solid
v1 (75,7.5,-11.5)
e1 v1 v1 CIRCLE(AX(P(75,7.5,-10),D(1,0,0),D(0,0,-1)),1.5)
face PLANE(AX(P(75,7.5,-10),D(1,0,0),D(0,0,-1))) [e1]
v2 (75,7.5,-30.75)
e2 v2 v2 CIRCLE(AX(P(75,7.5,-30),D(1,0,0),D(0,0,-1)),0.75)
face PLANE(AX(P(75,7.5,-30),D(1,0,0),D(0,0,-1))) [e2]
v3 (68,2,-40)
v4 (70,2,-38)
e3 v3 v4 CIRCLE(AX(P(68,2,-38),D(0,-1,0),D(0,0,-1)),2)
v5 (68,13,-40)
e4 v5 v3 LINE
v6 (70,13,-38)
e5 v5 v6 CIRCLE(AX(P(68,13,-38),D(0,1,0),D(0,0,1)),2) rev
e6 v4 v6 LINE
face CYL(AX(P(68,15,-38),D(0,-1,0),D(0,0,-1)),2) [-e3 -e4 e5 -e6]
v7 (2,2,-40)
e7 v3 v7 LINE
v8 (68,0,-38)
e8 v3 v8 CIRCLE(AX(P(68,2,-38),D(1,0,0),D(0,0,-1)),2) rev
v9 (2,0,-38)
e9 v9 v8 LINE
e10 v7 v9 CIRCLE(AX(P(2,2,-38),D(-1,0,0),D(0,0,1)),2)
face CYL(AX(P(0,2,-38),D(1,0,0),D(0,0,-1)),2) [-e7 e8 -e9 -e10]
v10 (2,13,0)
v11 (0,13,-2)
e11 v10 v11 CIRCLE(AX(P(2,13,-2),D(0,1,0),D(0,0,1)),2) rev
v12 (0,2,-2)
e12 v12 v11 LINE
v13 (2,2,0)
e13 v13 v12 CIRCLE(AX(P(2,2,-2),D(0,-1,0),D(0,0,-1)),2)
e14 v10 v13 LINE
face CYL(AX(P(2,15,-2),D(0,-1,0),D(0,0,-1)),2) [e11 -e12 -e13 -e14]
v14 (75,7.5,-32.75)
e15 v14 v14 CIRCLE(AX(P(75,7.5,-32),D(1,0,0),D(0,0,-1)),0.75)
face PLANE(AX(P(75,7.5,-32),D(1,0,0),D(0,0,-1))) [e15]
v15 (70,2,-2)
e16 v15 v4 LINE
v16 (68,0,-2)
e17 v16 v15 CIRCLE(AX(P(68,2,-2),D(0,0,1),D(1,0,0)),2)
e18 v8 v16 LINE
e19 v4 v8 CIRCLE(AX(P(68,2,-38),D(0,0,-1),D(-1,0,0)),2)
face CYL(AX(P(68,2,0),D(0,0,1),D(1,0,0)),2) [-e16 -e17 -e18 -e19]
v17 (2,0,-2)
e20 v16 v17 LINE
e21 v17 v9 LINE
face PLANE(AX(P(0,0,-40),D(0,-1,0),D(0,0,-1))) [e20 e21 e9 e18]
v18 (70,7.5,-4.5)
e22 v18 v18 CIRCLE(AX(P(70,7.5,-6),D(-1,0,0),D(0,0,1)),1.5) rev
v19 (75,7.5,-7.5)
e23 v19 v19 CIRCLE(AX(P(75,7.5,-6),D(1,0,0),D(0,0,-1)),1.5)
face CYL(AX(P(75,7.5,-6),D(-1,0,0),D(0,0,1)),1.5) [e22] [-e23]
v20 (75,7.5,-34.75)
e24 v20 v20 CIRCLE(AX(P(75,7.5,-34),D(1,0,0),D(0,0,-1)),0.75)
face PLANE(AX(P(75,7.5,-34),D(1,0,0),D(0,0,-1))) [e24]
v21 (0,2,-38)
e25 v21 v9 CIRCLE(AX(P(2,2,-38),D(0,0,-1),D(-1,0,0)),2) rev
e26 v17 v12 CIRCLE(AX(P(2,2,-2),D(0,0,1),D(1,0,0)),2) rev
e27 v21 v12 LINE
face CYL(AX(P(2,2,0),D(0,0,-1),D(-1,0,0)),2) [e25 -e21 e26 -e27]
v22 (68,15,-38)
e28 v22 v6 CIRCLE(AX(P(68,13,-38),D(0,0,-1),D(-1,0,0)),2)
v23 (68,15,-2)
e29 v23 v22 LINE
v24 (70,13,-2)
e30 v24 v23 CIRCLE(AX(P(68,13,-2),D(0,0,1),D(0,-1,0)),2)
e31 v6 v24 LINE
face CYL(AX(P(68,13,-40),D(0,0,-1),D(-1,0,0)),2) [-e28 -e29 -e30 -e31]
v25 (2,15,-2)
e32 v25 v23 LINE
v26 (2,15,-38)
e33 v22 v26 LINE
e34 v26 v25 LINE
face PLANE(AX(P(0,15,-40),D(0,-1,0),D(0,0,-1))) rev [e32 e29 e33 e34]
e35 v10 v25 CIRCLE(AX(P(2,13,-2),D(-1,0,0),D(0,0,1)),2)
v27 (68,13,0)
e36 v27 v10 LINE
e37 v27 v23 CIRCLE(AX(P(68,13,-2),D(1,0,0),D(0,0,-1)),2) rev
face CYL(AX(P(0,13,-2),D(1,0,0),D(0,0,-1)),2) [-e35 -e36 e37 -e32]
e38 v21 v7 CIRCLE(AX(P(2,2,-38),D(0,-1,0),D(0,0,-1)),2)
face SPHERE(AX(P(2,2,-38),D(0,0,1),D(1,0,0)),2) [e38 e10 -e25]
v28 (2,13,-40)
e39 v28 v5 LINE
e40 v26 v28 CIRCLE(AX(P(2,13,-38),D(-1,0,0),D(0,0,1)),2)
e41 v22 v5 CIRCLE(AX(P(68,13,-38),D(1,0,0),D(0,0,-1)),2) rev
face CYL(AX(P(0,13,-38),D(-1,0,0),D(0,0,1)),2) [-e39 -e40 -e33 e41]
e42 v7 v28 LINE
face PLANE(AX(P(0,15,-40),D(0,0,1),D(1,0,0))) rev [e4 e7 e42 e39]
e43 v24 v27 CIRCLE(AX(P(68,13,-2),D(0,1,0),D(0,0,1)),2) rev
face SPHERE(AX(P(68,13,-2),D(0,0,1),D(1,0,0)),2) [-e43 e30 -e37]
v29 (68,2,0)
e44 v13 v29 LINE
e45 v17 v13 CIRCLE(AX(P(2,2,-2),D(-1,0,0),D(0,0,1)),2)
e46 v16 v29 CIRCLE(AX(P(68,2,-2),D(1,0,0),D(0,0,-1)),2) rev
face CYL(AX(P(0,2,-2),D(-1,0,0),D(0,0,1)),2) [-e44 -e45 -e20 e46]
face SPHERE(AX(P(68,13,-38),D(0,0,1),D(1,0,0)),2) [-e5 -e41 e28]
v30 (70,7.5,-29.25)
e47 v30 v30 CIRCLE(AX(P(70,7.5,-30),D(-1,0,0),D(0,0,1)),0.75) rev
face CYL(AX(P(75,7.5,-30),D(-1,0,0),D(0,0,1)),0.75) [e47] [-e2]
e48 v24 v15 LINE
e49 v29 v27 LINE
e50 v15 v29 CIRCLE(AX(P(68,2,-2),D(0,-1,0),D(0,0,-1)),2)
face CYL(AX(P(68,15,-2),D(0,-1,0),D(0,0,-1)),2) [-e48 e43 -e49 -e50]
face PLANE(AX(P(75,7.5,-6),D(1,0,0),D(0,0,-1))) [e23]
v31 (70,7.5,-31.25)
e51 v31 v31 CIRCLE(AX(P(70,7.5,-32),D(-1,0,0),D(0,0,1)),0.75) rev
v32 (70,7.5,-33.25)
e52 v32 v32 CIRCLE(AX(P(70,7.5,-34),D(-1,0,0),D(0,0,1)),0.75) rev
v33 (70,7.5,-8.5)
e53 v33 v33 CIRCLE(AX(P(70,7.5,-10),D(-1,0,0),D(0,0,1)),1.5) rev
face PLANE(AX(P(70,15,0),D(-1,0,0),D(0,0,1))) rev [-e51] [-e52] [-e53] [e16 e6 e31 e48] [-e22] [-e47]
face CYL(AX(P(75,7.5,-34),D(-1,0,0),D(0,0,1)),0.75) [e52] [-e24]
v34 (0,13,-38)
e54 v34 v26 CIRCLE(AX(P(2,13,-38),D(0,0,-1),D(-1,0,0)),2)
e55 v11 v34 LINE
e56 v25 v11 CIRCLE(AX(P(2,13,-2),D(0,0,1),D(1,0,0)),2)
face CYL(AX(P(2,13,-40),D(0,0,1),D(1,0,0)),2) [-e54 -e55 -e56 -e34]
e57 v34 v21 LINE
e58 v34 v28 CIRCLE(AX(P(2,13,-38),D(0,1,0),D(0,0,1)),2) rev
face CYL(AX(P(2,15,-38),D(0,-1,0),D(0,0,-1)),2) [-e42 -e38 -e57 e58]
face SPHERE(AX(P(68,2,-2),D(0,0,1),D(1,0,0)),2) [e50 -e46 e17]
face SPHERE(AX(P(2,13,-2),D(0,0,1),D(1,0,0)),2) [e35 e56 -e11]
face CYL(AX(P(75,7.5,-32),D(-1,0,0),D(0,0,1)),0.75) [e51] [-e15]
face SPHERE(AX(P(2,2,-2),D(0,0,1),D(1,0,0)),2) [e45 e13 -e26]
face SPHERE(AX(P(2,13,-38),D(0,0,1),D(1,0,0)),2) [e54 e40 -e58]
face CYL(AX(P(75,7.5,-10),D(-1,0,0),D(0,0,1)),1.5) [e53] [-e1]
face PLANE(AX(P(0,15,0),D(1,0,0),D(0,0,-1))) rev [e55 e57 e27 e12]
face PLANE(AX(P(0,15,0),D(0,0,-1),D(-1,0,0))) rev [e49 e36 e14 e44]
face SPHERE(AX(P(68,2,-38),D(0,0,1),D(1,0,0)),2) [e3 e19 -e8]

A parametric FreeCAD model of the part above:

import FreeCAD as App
import Part
import Sketcher
Q = App.Units.Quantity


def add_polygon(sketch, points):
    """Adds a closed chain of lines whose ends are joined by coincident constraints."""
    first, n = sketch.GeometryCount, len(points)
    for a, b in zip(points, points[1:] + points[:1]):
        sketch.addGeometry(Part.LineSegment(App.Vector(*a, 0), App.Vector(*b, 0)), False)
    for i in range(n):
        sketch.addConstraint(Sketcher.Constraint("Coincident", first + i, 2, first + (i + 1) % n, 1))

doc = App.newDocument("Part")
body = doc.addObject("PartDesign::Body", "Body")

# Sketch on XZ plane
sketch1 = body.newObject("Sketcher::SketchObject", "Sketch")
sketch1.AttachmentSupport = (doc.getObject("XZ_Plane"), [""])
sketch1.MapMode = "FlatFace"
add_polygon(sketch1, [(0, -40), (0, 0), (70, 0), (70, -40)])  # lines 0-3
sketch1.addConstraint(Sketcher.Constraint("Vertical", 0))
sketch1.addConstraint(Sketcher.Constraint("Horizontal", 1))
sketch1.addConstraint(Sketcher.Constraint("Vertical", 2))
sketch1.addConstraint(Sketcher.Constraint("Horizontal", 3))
sketch1.addConstraint(Sketcher.Constraint("Coincident", 0, 2, -1, 1))
sketch1.addConstraint(Sketcher.Constraint("DistanceX", 1, 1, 1, 2, Q("70 mm")))
sketch1.addConstraint(Sketcher.Constraint("DistanceY", 0, 1, 0, 2, Q("40 mm")))
pad1 = body.newObject("PartDesign::Pad", "Pad")
pad1.Profile = sketch1
pad1.Length = 15
pad1.Reversed = True
doc.recompute()

fillet = body.newObject("PartDesign::Fillet", "Fillet")
fillet.Base = (pad1, ["Edge1"])
fillet.UseAllEdges = True
fillet.Radius = 2

# Sketch on YZ plane
sketch2 = body.newObject("Sketcher::SketchObject", "Sketch001")
sketch2.AttachmentSupport = (doc.getObject("YZ_Plane"), [""])
sketch2.MapMode = "FlatFace"
sketch2.AttachmentOffset = App.Placement(App.Vector(0, 0, 70), App.Rotation())
sketch2.addGeometry(Part.Circle(App.Vector(7.5, -6, 0), App.Vector(0, 0, 1), 1.5), False)
sketch2.addGeometry(Part.Circle(App.Vector(7.5, -10, 0), App.Vector(0, 0, 1), 1.5), False)
sketch2.addGeometry(Part.Circle(App.Vector(7.5, -30, 0), App.Vector(0, 0, 1), 0.8), False)
sketch2.addGeometry(Part.Circle(App.Vector(7.5, -32, 0), App.Vector(0, 0, 1), 0.8), False)
sketch2.addGeometry(Part.Circle(App.Vector(7.5, -34, 0), App.Vector(0, 0, 1), 0.8), False)
sketch2.addConstraint(Sketcher.Constraint("Equal", 0, 1))
sketch2.addConstraint(Sketcher.Constraint("Equal", 2, 3))
sketch2.addConstraint(Sketcher.Constraint("Equal", 3, 4))
sketch2.addConstraint(Sketcher.Constraint("Vertical", 0, 3, 1, 3))
sketch2.addConstraint(Sketcher.Constraint("Vertical", 1, 3, 2, 3))
sketch2.addConstraint(Sketcher.Constraint("Vertical", 2, 3, 3, 3))
sketch2.addConstraint(Sketcher.Constraint("Vertical", 3, 3, 4, 3))
sketch2.addConstraint(Sketcher.Constraint("Diameter", 0, Q("3 mm")))
sketch2.addConstraint(Sketcher.Constraint("Diameter", 2, Q("1.5 mm")))
sketch2.addConstraint(Sketcher.Constraint("DistanceY", 0, 3, -1, 1, Q("6 mm")))
sketch2.addConstraint(Sketcher.Constraint("DistanceY", 1, 3, -1, 1, Q("10 mm")))
sketch2.addConstraint(Sketcher.Constraint("DistanceY", 2, 3, -1, 1, Q("30 mm")))
sketch2.addConstraint(Sketcher.Constraint("DistanceY", 3, 3, -1, 1, Q("32 mm")))
sketch2.addConstraint(Sketcher.Constraint("DistanceY", 4, 3, -1, 1, Q("34 mm")))
sketch2.addConstraint(Sketcher.Constraint("DistanceX", -1, 1, 0, 3, Q("7.5 mm")))
pad2 = body.newObject("PartDesign::Pad", "Pad001")
pad2.Profile = sketch2
pad2.Length = 5

doc.recompute()
